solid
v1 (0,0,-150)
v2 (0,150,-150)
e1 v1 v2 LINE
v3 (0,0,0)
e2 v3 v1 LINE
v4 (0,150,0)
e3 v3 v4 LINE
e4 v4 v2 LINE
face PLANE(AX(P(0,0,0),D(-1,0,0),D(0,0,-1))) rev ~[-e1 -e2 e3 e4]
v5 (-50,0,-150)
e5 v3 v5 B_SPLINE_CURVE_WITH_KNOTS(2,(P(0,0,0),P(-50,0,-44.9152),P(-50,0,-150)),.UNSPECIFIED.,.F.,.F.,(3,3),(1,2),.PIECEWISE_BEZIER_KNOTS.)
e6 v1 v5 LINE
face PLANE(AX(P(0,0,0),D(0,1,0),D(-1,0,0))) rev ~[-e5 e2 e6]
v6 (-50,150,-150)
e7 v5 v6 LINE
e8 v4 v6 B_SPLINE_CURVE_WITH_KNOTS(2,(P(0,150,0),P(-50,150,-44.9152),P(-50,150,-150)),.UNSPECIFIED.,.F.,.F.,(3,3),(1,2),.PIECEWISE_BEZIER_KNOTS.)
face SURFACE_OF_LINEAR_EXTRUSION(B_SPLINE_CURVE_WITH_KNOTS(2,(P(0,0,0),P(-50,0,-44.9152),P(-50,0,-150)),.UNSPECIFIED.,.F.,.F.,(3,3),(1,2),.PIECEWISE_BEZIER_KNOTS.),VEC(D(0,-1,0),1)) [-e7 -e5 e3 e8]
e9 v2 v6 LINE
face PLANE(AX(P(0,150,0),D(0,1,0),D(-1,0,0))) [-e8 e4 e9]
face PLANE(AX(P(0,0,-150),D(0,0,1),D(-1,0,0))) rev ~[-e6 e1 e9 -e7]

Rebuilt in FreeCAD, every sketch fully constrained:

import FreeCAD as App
import Part
import Sketcher
from FreeCAD import Vector

doc = App.newDocument("Part")
body = doc.addObject("PartDesign::Body", "Body")

# Sketch on XZ plane
sketch1 = doc.addObject("Sketcher::SketchObject", "Sketch")
body.addObject(sketch1)
sketch1.AttachmentSupport = (doc.XZ_Plane, [""])
sketch1.MapMode = "FlatFace"
sketch1.addGeometry(Part.BSplineCurve([Vector(0, 0, 0), Vector(-50, -44.9152, 0), Vector(-50, -150, 0)], [3, 3], [1, 2], False, 2, [1, 1, 1], False), False)
sketch1.addGeometry(Part.LineSegment(Vector(0, 0, 0), Vector(0, -150, 0)), False)
sketch1.addGeometry(Part.LineSegment(Vector(0, -150, 0), Vector(-50, -150, 0)), False)
sketch1.addConstraint(Sketcher.Constraint("Block", 0))
sketch1.addConstraint(Sketcher.Constraint("Coincident", 0, 1, 1, 1))
sketch1.addConstraint(Sketcher.Constraint("Coincident", 1, 2, 2, 1))
sketch1.addConstraint(Sketcher.Constraint("Coincident", 2, 2, 0, 2))
sketch1.addConstraint(Sketcher.Constraint("Vertical", 1))
sketch1.addConstraint(Sketcher.Constraint("Horizontal", 2))
pad1 = doc.addObject("PartDesign::Pad", "Pad")
body.addObject(pad1)
pad1.Profile = sketch1
pad1.Length = 150
pad1.Reversed = True

doc.recompute()
